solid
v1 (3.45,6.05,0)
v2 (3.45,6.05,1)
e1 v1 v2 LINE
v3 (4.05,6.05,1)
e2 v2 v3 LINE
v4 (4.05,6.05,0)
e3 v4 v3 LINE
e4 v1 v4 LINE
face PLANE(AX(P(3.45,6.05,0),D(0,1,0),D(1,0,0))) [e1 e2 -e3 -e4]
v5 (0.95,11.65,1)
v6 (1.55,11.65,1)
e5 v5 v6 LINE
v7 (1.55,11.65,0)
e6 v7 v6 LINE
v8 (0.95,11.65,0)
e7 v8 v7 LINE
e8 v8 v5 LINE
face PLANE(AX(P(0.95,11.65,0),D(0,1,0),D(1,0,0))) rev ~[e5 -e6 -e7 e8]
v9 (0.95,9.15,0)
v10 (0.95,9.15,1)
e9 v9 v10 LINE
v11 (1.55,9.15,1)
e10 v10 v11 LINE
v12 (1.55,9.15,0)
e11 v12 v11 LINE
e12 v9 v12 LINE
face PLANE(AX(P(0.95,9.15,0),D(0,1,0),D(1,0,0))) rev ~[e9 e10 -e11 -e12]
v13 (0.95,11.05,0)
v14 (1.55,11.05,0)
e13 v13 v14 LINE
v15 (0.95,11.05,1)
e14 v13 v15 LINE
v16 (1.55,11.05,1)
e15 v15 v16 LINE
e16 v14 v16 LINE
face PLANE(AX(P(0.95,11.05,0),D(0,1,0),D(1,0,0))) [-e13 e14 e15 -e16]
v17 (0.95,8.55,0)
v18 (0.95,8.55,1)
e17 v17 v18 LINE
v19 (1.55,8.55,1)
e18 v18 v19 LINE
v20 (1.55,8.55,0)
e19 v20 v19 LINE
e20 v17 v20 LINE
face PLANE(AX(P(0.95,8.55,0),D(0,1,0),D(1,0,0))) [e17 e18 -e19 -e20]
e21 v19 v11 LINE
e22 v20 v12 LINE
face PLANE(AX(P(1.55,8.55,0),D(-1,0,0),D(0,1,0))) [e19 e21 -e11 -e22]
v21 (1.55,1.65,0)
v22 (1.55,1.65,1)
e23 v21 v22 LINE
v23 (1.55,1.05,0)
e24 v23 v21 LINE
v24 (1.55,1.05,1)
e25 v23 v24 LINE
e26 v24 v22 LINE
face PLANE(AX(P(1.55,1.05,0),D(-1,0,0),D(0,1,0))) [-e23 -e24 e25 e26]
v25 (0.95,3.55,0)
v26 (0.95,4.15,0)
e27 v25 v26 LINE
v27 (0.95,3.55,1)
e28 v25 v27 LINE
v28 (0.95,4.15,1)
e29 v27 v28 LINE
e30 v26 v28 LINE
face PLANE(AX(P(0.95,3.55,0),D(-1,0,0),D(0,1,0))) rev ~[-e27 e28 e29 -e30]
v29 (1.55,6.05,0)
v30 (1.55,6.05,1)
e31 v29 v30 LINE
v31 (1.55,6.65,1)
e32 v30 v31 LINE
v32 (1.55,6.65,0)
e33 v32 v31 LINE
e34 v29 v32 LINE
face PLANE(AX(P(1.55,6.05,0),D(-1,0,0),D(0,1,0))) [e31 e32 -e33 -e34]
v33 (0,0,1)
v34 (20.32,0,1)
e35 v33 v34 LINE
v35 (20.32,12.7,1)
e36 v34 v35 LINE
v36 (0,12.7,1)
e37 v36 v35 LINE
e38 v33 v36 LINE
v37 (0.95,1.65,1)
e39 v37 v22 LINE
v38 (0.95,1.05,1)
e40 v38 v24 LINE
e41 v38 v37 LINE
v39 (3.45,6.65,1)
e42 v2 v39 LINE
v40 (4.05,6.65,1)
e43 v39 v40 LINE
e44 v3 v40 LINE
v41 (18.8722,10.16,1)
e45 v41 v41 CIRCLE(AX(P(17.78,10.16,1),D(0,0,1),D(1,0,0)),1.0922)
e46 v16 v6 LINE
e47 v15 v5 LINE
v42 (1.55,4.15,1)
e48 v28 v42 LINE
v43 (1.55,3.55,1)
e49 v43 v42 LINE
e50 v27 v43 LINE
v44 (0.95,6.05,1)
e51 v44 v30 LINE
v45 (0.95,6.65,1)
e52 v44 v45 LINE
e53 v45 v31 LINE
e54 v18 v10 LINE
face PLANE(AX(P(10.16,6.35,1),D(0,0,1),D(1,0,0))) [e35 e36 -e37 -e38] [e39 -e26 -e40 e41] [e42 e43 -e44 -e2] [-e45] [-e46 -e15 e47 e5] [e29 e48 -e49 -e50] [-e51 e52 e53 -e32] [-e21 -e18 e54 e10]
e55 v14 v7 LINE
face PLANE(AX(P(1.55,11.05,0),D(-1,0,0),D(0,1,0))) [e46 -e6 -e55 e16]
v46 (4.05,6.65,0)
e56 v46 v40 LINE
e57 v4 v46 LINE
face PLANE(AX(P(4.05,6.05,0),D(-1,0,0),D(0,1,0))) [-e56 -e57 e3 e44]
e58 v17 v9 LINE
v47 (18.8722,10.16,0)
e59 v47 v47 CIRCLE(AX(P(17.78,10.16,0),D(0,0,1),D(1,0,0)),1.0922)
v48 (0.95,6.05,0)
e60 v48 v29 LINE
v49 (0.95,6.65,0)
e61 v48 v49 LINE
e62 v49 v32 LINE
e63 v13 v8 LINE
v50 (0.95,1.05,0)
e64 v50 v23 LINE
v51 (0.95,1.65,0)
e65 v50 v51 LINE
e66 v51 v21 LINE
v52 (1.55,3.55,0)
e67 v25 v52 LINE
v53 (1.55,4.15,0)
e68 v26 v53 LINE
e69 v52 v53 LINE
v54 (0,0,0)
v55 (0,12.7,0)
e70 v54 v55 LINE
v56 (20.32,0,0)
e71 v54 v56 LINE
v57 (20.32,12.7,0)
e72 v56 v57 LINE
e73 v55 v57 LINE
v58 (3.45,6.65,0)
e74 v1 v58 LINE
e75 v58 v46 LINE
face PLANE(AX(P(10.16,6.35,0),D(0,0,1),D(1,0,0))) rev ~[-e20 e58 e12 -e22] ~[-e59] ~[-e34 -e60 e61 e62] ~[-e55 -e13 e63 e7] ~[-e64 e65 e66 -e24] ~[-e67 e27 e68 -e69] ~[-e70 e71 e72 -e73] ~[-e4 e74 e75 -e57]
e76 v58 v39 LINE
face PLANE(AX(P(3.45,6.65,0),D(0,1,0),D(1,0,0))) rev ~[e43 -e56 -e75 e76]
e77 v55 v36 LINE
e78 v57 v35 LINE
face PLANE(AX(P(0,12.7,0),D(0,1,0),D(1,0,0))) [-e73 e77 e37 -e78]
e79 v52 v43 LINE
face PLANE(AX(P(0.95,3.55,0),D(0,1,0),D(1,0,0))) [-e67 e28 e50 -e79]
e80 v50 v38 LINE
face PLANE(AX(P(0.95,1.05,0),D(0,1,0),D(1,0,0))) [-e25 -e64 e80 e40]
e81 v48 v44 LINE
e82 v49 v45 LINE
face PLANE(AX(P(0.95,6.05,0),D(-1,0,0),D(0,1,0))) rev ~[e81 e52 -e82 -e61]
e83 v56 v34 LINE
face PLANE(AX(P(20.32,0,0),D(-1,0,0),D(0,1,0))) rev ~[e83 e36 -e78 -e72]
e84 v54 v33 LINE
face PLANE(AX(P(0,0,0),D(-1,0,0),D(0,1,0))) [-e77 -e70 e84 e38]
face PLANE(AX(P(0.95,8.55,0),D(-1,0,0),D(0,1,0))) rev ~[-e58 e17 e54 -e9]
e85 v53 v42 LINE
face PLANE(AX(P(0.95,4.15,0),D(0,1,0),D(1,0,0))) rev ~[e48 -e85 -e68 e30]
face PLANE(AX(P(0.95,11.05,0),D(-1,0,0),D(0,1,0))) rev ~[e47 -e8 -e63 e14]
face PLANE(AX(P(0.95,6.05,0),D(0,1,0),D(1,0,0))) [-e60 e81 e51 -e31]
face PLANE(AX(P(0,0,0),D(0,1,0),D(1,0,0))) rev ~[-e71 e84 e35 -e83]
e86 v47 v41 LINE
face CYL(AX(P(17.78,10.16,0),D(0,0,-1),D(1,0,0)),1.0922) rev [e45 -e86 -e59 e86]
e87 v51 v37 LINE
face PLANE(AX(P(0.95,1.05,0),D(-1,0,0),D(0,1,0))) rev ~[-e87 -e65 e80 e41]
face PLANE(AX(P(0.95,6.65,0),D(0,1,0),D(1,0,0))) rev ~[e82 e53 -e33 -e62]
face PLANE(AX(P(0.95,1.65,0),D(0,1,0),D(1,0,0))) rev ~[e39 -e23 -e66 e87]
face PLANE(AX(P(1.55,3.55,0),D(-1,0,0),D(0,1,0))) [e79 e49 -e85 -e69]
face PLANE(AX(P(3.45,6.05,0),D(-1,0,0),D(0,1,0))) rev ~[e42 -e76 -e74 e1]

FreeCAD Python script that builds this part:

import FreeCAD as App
import Part
import Sketcher
Q = App.Units.Quantity


def add_polygon(sketch, points):
    """Adds a closed chain of lines whose ends are joined by coincident constraints."""
    first, n = sketch.GeometryCount, len(points)
    for a, b in zip(points, points[1:] + points[:1]):
        sketch.addGeometry(Part.LineSegment(App.Vector(*a, 0), App.Vector(*b, 0)), False)
    for i in range(n):
        sketch.addConstraint(Sketcher.Constraint("Coincident", first + i, 2, first + (i + 1) % n, 1))

doc = App.newDocument("Part")
body = doc.addObject("PartDesign::Body", "Body")

# Sketch on XY plane
sketch1 = doc.addObject("Sketcher::SketchObject", "Sketch")
body.addObject(sketch1)
sketch1.AttachmentSupport = (doc.XY_Plane, [""])
sketch1.MapMode = "FlatFace"
add_polygon(sketch1, [(0, 12.7), (0, 0), (20.32, 0), (20.32, 12.7)])  # lines 0-3
add_polygon(sketch1, [(1.55, 1.05), (0.95, 1.05), (0.95, 1.65), (1.55, 1.65)])  # lines 4-7
add_polygon(sketch1, [(1.55, 3.55), (0.95, 3.55), (0.95, 4.15), (1.55, 4.15)])  # lines 8-11
add_polygon(sketch1, [(1.55, 6.05), (0.95, 6.05), (0.95, 6.65), (1.55, 6.65)])  # lines 12-15
add_polygon(sketch1, [(4.05, 6.05), (3.45, 6.05), (3.45, 6.65), (4.05, 6.65)])  # lines 16-19
add_polygon(sketch1, [(1.55, 8.55), (0.95, 8.55), (0.95, 9.15), (1.55, 9.15)])  # lines 20-23
add_polygon(sketch1, [(1.55, 11.05), (0.95, 11.05), (0.95, 11.65), (1.55, 11.65)])  # lines 24-27
sketch1.addGeometry(Part.Circle(App.Vector(17.78, 10.16, 0), App.Vector(0, 0, 1), 1.0922), False)  # 28
sketch1.addConstraint(Sketcher.Constraint("Vertical", 0))
sketch1.addConstraint(Sketcher.Constraint("Horizontal", 1))
sketch1.addConstraint(Sketcher.Constraint("Vertical", 2))
sketch1.addConstraint(Sketcher.Constraint("Horizontal", 3))
sketch1.addConstraint(Sketcher.Constraint("Horizontal", 4))
sketch1.addConstraint(Sketcher.Constraint("Vertical", 5))
sketch1.addConstraint(Sketcher.Constraint("Horizontal", 6))
sketch1.addConstraint(Sketcher.Constraint("Vertical", 7))
sketch1.addConstraint(Sketcher.Constraint("Horizontal", 8))
sketch1.addConstraint(Sketcher.Constraint("Vertical", 9))
sketch1.addConstraint(Sketcher.Constraint("Horizontal", 10))
sketch1.addConstraint(Sketcher.Constraint("Vertical", 11))
sketch1.addConstraint(Sketcher.Constraint("Horizontal", 12))
sketch1.addConstraint(Sketcher.Constraint("Vertical", 13))
sketch1.addConstraint(Sketcher.Constraint("Horizontal", 14))
sketch1.addConstraint(Sketcher.Constraint("Vertical", 15))
sketch1.addConstraint(Sketcher.Constraint("Horizontal", 16))
sketch1.addConstraint(Sketcher.Constraint("Vertical", 17))
sketch1.addConstraint(Sketcher.Constraint("Horizontal", 18))
sketch1.addConstraint(Sketcher.Constraint("Vertical", 19))
sketch1.addConstraint(Sketcher.Constraint("Horizontal", 20))
sketch1.addConstraint(Sketcher.Constraint("Vertical", 21))
sketch1.addConstraint(Sketcher.Constraint("Horizontal", 22))
sketch1.addConstraint(Sketcher.Constraint("Vertical", 23))
sketch1.addConstraint(Sketcher.Constraint("Horizontal", 24))
sketch1.addConstraint(Sketcher.Constraint("Vertical", 25))
sketch1.addConstraint(Sketcher.Constraint("Horizontal", 26))
sketch1.addConstraint(Sketcher.Constraint("Vertical", 27))
sketch1.addConstraint(Sketcher.Constraint("Coincident", 0, 2, -1, 1))
sketch1.addConstraint(Sketcher.Constraint("Horizontal", 15, 2, 16, 2))
sketch1.addConstraint(Sketcher.Constraint("Horizontal", 14, 2, 17, 2))
sketch1.addConstraint(Sketcher.Constraint("Vertical", 5, 2, 8, 2))
sketch1.addConstraint(Sketcher.Constraint("Vertical", 7, 2, 10, 2))
sketch1.addConstraint(Sketcher.Constraint("Vertical", 9, 2, 12, 2))
sketch1.addConstraint(Sketcher.Constraint("Vertical", 11, 2, 14, 2))
sketch1.addConstraint(Sketcher.Constraint("Vertical", 13, 2, 20, 2))
sketch1.addConstraint(Sketcher.Constraint("Vertical", 15, 2, 22, 2))
sketch1.addConstraint(Sketcher.Constraint("Vertical", 21, 2, 24, 2))
sketch1.addConstraint(Sketcher.Constraint("Vertical", 23, 2, 26, 2))
sketch1.addConstraint(Sketcher.Constraint("Equal", 14, 16))
sketch1.addConstraint(Sketcher.Constraint("Equal", 26, 5))
sketch1.addConstraint(Sketcher.Constraint("Equal", 7, 9))
sketch1.addConstraint(Sketcher.Constraint("Equal", 11, 13))
sketch1.addConstraint(Sketcher.Constraint("Equal", 19, 21))
sketch1.addConstraint(Sketcher.Constraint("Equal", 23, 25))
sketch1.addConstraint(Sketcher.Constraint("Diameter", 28, Q("0.086 in")))
sketch1.addConstraint(Sketcher.Constraint("DistanceX", 1, 1, 1, 2, Q("0.8 in")))
sketch1.addConstraint(Sketcher.Constraint("DistanceY", 0, 2, 0, 1, Q("0.5 in")))
sketch1.addConstraint(Sketcher.Constraint("DistanceX", -1, 1, 28, 3, Q("0.7 in")))
sketch1.addConstraint(Sketcher.Constraint("DistanceY", -1, 1, 28, 3, Q("0.4 in")))
sketch1.addConstraint(Sketcher.Constraint("DistanceX", 4, 2, 4, 1, Q("0.6 mm")))
sketch1.addConstraint(Sketcher.Constraint("DistanceX", -1, 1, 4, 2, Q("0.95 mm")))
sketch1.addConstraint(Sketcher.Constraint("DistanceY", -1, 1, 4, 2, Q("1.05 mm")))
sketch1.addConstraint(Sketcher.Constraint("DistanceY", -1, 1, 8, 2, Q("3.55 mm")))
sketch1.addConstraint(Sketcher.Constraint("DistanceY", -1, 1, 12, 2, Q("6.05 mm")))
sketch1.addConstraint(Sketcher.Constraint("DistanceX", -1, 1, 16, 2, Q("3.45 mm")))
sketch1.addConstraint(Sketcher.Constraint("DistanceY", -1, 1, 20, 2, Q("8.55 mm")))
sketch1.addConstraint(Sketcher.Constraint("DistanceY", -1, 1, 24, 2, Q("11.05 mm")))
pad1 = doc.addObject("PartDesign::Pad", "Pad")
body.addObject(pad1)
pad1.Profile = sketch1
pad1.Length = 1

doc.recompute()
